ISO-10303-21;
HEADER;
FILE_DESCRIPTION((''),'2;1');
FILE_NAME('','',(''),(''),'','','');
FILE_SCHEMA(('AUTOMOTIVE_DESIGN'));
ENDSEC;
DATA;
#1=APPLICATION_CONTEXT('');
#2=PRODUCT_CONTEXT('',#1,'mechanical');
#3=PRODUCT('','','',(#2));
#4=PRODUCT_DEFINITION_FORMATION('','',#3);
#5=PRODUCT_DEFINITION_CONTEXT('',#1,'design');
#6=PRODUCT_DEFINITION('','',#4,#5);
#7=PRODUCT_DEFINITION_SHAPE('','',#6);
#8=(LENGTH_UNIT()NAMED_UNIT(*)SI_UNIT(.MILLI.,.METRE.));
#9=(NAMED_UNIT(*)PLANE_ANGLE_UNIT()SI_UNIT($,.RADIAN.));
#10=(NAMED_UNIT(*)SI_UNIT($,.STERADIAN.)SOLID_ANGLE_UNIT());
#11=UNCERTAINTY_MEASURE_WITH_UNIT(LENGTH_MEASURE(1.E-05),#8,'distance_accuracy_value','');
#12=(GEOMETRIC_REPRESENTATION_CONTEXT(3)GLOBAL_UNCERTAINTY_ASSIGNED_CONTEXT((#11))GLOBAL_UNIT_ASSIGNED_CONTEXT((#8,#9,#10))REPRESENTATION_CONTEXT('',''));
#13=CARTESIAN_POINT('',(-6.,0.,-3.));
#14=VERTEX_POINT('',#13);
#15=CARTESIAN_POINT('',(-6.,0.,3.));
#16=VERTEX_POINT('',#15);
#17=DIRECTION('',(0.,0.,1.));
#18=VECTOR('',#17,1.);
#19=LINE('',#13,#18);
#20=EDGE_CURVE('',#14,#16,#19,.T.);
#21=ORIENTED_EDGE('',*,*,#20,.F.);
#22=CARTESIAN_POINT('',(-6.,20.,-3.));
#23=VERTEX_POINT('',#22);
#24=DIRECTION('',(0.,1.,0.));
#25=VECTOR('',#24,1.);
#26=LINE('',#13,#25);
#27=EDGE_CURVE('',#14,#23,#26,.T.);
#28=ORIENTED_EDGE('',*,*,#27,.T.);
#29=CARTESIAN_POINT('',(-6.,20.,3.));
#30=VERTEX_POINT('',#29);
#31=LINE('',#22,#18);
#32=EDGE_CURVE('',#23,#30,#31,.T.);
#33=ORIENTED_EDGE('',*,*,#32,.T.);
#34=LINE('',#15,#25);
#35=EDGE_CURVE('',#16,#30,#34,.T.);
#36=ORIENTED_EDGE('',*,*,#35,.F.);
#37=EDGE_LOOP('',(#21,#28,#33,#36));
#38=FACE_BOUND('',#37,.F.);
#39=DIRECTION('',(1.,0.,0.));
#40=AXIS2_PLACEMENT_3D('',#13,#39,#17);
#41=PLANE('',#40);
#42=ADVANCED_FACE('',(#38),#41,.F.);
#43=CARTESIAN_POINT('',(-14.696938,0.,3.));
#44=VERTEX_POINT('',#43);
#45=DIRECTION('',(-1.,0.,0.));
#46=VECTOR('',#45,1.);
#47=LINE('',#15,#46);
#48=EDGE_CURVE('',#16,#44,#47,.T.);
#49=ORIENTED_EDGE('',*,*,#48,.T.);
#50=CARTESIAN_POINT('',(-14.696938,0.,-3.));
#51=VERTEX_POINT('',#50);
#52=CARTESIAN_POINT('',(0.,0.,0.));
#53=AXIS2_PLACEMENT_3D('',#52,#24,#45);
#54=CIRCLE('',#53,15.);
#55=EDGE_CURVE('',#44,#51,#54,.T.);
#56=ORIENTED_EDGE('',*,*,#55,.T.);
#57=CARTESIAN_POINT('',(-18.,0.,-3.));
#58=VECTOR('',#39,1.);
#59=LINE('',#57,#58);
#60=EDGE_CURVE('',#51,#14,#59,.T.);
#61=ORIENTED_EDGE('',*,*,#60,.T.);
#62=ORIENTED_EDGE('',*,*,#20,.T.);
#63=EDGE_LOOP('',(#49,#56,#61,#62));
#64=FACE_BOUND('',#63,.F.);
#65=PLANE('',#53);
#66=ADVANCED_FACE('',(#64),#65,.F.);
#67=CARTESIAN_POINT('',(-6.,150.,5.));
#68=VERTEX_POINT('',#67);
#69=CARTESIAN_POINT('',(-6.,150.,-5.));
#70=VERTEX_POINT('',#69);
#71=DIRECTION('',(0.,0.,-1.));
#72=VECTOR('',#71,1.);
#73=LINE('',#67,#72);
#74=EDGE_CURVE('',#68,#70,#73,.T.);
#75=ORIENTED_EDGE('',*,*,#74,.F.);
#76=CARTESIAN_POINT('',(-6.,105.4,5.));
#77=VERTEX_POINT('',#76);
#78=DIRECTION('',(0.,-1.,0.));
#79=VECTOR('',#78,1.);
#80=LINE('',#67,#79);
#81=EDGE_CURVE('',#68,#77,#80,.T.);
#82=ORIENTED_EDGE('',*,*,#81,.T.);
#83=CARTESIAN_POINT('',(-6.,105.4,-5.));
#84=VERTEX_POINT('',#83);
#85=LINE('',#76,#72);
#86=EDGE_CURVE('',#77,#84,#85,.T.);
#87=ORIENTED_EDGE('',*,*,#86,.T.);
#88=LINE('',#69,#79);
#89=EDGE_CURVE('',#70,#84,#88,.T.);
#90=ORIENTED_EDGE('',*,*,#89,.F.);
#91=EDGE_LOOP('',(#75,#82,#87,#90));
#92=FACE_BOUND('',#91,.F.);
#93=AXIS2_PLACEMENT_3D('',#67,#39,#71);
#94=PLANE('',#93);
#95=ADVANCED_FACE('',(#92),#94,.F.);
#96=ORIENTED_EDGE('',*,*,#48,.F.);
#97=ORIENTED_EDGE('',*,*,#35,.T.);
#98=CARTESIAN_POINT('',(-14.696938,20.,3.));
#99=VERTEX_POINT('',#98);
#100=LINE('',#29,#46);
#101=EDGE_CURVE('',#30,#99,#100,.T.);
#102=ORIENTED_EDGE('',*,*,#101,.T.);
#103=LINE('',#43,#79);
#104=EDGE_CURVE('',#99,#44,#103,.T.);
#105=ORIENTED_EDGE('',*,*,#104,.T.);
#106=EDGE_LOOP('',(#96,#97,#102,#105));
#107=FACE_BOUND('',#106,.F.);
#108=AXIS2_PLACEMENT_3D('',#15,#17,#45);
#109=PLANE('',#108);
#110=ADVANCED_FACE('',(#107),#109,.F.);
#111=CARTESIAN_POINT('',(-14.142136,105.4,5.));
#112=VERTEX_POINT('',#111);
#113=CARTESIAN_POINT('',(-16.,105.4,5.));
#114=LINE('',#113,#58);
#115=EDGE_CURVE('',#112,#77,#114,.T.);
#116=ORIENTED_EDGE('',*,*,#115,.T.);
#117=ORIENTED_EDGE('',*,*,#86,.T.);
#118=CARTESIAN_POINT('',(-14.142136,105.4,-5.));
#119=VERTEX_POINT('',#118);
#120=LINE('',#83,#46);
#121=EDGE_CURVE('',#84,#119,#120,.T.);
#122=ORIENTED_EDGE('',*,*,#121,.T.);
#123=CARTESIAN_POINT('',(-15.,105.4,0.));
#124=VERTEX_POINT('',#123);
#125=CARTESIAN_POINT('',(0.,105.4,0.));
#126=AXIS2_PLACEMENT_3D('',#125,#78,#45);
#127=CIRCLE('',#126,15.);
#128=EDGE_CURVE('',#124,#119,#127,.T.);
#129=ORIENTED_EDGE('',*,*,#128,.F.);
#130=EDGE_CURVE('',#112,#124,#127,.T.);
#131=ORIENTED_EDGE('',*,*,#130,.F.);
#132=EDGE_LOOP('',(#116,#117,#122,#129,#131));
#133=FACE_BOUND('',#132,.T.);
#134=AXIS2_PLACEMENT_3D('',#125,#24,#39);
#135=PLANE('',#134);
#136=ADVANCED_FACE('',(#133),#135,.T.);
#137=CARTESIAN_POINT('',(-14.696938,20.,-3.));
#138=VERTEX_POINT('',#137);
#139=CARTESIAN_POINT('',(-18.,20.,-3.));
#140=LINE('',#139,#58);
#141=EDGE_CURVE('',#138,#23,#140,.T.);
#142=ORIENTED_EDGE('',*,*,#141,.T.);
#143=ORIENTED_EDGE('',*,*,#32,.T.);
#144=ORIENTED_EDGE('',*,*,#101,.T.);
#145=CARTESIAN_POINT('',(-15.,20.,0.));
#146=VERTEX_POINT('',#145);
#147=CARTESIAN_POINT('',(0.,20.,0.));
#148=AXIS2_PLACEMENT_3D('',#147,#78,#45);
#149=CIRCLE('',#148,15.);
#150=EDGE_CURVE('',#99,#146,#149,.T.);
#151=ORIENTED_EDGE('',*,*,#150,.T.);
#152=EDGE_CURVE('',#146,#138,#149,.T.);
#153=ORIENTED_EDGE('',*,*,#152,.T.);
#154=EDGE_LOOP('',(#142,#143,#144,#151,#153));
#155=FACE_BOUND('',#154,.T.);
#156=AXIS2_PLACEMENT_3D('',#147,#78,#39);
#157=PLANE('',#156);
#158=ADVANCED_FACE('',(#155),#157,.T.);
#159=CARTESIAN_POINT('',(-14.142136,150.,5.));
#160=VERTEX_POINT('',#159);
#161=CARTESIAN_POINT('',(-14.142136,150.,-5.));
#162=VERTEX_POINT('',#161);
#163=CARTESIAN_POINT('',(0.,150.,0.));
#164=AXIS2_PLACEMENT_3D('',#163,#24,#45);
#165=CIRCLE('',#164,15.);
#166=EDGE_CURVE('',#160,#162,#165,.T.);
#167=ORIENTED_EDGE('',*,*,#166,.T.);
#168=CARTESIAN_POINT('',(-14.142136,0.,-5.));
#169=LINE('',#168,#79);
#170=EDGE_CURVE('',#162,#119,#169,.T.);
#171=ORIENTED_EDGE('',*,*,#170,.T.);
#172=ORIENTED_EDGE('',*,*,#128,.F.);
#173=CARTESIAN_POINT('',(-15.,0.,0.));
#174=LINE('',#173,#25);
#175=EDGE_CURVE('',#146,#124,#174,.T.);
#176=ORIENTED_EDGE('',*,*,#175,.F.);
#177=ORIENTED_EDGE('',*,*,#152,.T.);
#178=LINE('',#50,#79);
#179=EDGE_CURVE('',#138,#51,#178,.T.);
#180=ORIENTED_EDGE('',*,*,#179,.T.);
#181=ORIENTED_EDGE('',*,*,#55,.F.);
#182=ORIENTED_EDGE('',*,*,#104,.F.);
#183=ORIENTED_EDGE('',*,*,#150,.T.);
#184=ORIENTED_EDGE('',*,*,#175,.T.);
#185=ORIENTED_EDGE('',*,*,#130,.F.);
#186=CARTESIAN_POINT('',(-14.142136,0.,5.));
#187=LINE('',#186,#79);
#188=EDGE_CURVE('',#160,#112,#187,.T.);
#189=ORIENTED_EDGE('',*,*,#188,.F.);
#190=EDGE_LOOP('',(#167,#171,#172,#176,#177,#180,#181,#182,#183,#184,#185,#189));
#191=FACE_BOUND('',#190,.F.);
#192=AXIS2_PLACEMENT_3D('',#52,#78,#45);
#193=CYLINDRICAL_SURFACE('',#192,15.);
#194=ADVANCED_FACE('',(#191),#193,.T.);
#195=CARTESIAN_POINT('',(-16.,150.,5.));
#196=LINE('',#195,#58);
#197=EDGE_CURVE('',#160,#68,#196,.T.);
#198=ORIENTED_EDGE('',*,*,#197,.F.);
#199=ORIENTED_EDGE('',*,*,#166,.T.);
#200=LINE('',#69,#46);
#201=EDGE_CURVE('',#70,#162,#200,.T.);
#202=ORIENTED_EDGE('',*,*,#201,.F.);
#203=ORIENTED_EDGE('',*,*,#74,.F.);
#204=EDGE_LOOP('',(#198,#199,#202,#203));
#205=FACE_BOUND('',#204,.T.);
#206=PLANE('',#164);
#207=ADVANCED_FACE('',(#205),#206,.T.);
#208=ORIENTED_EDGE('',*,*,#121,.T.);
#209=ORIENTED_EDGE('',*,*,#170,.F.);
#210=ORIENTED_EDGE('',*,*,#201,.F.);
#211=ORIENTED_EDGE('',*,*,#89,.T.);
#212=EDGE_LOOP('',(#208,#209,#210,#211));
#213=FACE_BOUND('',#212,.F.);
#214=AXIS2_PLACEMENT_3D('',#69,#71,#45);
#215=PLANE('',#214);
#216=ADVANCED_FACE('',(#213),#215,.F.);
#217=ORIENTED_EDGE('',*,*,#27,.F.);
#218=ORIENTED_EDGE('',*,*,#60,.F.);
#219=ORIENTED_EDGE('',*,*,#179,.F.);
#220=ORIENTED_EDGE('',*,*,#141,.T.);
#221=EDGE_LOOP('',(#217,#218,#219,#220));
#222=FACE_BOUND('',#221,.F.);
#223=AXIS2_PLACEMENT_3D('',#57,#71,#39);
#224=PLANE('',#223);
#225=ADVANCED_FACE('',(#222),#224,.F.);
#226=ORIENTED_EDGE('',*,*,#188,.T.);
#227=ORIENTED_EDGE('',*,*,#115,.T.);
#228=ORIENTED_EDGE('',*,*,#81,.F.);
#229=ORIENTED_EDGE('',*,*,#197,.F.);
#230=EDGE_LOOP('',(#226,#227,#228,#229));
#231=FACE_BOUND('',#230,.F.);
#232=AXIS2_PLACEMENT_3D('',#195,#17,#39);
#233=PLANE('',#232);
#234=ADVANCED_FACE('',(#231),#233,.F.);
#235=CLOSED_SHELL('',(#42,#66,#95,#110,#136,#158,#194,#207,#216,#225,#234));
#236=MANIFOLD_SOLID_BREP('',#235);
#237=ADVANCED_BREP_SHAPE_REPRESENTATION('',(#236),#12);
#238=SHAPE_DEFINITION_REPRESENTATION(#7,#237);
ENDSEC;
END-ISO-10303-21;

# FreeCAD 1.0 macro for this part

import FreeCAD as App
import Part
import Sketcher
Q = App.Units.Quantity

doc = App.newDocument("Part")
params = doc.addObject("Spreadsheet::Sheet", "Params")
for row, (alias, value) in enumerate([
    ("sketch1_diameter", "30 mm"),
    ("pad1_length", "150 mm"),
    ("sketch2_width", "10 mm"),
    ("pocket1_length", "44.6 mm"),
    ("sketch3_width", "12 mm"),
    ("sketch3_height", "6 mm"),
    ("pocket2_length", "20 mm"),
], start=1):
    params.set(f"A{row}", alias)
    params.set(f"B{row}", "=" + value)
    params.setAlias(f"B{row}", alias)

body = doc.addObject("PartDesign::Body", "Body")

# Sketch on XZ plane
sketch1 = body.newObject("Sketcher::SketchObject", "Sketch")
sketch1.AttachmentSupport = (doc.getObject("XZ_Plane"), [""])
sketch1.MapMode = "FlatFace"
sketch1.addGeometry(Part.Circle(App.Vector(0, 0, 0), App.Vector(0, 0, 1), 15), False)
sketch1.addConstraint([
    Sketcher.Constraint("Coincident", 0, 3, -1, 1),
    Sketcher.Constraint("Diameter", 0, Q("30 mm")),
])
sketch1.setExpression("Constraints[1]", "Params.sketch1_diameter")
pad1 = body.newObject("PartDesign::Pad", "Pad")
pad1.Profile = sketch1
pad1.setExpression("Length", "Params.pad1_length")
pad1.Reversed = True

# Sketch on XZ plane
sketch2 = body.newObject("Sketcher::SketchObject", "Sketch001")
sketch2.AttachmentSupport = (doc.getObject("XZ_Plane"), [""])
sketch2.MapMode = "FlatFace"
sketch2.AttachmentOffset = App.Placement(App.Vector(0, 0, -150), App.Rotation())
sketch2.addGeometry([
    Part.LineSegment(App.Vector(-16, -5, 0), App.Vector(-16, 5, 0)),
    Part.LineSegment(App.Vector(-16, 5, 0), App.Vector(-6, 5, 0)),
    Part.LineSegment(App.Vector(-6, 5, 0), App.Vector(-6, -5, 0)),
    Part.LineSegment(App.Vector(-6, -5, 0), App.Vector(-16, -5, 0)),
], False)
sketch2.addConstraint([
    Sketcher.Constraint("Coincident", 0, 2, 1, 1),
    Sketcher.Constraint("Coincident", 1, 2, 2, 1),
    Sketcher.Constraint("Coincident", 2, 2, 3, 1),
    Sketcher.Constraint("Coincident", 3, 2, 0, 1),
    Sketcher.Constraint("Vertical", 0),
    Sketcher.Constraint("Horizontal", 1),
    Sketcher.Constraint("Vertical", 2),
    Sketcher.Constraint("Horizontal", 3),
    Sketcher.Constraint("Equal", 3, 0),
    Sketcher.Constraint("DistanceX", 1, 1, 1, 2, Q("10 mm")),
    Sketcher.Constraint("DistanceX", 1, 2, -1, 1, Q("6 mm")),
    Sketcher.Constraint("DistanceY", -1, 1, 0, 2, Q("5 mm")),
])
sketch2.setExpression("Constraints[9]", "Params.sketch2_width")
pocket1 = body.newObject("PartDesign::Pocket", "Pocket")
pocket1.Profile = sketch2
pocket1.setExpression("Length", "Params.pocket1_length")
pocket1.Reversed = True

# Sketch on XZ plane
sketch3 = body.newObject("Sketcher::SketchObject", "Sketch002")
sketch3.AttachmentSupport = (doc.getObject("XZ_Plane"), [""])
sketch3.MapMode = "FlatFace"
sketch3.addGeometry([
    Part.LineSegment(App.Vector(-18, 3, 0), App.Vector(-18, -3, 0)),
    Part.LineSegment(App.Vector(-18, -3, 0), App.Vector(-6, -3, 0)),
    Part.LineSegment(App.Vector(-6, -3, 0), App.Vector(-6, 3, 0)),
    Part.LineSegment(App.Vector(-6, 3, 0), App.Vector(-18, 3, 0)),
], False)
sketch3.addConstraint([
    Sketcher.Constraint("Coincident", 0, 2, 1, 1),
    Sketcher.Constraint("Coincident", 1, 2, 2, 1),
    Sketcher.Constraint("Coincident", 2, 2, 3, 1),
    Sketcher.Constraint("Coincident", 3, 2, 0, 1),
    Sketcher.Constraint("Vertical", 0),
    Sketcher.Constraint("Horizontal", 1),
    Sketcher.Constraint("Vertical", 2),
    Sketcher.Constraint("Horizontal", 3),
    Sketcher.Constraint("DistanceX", 1, 1, 1, 2, Q("12 mm")),
    Sketcher.Constraint("DistanceY", 0, 2, 0, 1, Q("6 mm")),
    Sketcher.Constraint("DistanceX", 1, 2, -1, 1, Q("6 mm")),
    Sketcher.Constraint("DistanceY", 0, 2, -1, 1, Q("3 mm")),
])
sketch3.setExpression("Constraints[8]", "Params.sketch3_width")
sketch3.setExpression("Constraints[9]", "Params.sketch3_height")
pocket2 = body.newObject("PartDesign::Pocket", "Pocket001")
pocket2.Profile = sketch3
pocket2.setExpression("Length", "Params.pocket2_length")

doc.recompute()
